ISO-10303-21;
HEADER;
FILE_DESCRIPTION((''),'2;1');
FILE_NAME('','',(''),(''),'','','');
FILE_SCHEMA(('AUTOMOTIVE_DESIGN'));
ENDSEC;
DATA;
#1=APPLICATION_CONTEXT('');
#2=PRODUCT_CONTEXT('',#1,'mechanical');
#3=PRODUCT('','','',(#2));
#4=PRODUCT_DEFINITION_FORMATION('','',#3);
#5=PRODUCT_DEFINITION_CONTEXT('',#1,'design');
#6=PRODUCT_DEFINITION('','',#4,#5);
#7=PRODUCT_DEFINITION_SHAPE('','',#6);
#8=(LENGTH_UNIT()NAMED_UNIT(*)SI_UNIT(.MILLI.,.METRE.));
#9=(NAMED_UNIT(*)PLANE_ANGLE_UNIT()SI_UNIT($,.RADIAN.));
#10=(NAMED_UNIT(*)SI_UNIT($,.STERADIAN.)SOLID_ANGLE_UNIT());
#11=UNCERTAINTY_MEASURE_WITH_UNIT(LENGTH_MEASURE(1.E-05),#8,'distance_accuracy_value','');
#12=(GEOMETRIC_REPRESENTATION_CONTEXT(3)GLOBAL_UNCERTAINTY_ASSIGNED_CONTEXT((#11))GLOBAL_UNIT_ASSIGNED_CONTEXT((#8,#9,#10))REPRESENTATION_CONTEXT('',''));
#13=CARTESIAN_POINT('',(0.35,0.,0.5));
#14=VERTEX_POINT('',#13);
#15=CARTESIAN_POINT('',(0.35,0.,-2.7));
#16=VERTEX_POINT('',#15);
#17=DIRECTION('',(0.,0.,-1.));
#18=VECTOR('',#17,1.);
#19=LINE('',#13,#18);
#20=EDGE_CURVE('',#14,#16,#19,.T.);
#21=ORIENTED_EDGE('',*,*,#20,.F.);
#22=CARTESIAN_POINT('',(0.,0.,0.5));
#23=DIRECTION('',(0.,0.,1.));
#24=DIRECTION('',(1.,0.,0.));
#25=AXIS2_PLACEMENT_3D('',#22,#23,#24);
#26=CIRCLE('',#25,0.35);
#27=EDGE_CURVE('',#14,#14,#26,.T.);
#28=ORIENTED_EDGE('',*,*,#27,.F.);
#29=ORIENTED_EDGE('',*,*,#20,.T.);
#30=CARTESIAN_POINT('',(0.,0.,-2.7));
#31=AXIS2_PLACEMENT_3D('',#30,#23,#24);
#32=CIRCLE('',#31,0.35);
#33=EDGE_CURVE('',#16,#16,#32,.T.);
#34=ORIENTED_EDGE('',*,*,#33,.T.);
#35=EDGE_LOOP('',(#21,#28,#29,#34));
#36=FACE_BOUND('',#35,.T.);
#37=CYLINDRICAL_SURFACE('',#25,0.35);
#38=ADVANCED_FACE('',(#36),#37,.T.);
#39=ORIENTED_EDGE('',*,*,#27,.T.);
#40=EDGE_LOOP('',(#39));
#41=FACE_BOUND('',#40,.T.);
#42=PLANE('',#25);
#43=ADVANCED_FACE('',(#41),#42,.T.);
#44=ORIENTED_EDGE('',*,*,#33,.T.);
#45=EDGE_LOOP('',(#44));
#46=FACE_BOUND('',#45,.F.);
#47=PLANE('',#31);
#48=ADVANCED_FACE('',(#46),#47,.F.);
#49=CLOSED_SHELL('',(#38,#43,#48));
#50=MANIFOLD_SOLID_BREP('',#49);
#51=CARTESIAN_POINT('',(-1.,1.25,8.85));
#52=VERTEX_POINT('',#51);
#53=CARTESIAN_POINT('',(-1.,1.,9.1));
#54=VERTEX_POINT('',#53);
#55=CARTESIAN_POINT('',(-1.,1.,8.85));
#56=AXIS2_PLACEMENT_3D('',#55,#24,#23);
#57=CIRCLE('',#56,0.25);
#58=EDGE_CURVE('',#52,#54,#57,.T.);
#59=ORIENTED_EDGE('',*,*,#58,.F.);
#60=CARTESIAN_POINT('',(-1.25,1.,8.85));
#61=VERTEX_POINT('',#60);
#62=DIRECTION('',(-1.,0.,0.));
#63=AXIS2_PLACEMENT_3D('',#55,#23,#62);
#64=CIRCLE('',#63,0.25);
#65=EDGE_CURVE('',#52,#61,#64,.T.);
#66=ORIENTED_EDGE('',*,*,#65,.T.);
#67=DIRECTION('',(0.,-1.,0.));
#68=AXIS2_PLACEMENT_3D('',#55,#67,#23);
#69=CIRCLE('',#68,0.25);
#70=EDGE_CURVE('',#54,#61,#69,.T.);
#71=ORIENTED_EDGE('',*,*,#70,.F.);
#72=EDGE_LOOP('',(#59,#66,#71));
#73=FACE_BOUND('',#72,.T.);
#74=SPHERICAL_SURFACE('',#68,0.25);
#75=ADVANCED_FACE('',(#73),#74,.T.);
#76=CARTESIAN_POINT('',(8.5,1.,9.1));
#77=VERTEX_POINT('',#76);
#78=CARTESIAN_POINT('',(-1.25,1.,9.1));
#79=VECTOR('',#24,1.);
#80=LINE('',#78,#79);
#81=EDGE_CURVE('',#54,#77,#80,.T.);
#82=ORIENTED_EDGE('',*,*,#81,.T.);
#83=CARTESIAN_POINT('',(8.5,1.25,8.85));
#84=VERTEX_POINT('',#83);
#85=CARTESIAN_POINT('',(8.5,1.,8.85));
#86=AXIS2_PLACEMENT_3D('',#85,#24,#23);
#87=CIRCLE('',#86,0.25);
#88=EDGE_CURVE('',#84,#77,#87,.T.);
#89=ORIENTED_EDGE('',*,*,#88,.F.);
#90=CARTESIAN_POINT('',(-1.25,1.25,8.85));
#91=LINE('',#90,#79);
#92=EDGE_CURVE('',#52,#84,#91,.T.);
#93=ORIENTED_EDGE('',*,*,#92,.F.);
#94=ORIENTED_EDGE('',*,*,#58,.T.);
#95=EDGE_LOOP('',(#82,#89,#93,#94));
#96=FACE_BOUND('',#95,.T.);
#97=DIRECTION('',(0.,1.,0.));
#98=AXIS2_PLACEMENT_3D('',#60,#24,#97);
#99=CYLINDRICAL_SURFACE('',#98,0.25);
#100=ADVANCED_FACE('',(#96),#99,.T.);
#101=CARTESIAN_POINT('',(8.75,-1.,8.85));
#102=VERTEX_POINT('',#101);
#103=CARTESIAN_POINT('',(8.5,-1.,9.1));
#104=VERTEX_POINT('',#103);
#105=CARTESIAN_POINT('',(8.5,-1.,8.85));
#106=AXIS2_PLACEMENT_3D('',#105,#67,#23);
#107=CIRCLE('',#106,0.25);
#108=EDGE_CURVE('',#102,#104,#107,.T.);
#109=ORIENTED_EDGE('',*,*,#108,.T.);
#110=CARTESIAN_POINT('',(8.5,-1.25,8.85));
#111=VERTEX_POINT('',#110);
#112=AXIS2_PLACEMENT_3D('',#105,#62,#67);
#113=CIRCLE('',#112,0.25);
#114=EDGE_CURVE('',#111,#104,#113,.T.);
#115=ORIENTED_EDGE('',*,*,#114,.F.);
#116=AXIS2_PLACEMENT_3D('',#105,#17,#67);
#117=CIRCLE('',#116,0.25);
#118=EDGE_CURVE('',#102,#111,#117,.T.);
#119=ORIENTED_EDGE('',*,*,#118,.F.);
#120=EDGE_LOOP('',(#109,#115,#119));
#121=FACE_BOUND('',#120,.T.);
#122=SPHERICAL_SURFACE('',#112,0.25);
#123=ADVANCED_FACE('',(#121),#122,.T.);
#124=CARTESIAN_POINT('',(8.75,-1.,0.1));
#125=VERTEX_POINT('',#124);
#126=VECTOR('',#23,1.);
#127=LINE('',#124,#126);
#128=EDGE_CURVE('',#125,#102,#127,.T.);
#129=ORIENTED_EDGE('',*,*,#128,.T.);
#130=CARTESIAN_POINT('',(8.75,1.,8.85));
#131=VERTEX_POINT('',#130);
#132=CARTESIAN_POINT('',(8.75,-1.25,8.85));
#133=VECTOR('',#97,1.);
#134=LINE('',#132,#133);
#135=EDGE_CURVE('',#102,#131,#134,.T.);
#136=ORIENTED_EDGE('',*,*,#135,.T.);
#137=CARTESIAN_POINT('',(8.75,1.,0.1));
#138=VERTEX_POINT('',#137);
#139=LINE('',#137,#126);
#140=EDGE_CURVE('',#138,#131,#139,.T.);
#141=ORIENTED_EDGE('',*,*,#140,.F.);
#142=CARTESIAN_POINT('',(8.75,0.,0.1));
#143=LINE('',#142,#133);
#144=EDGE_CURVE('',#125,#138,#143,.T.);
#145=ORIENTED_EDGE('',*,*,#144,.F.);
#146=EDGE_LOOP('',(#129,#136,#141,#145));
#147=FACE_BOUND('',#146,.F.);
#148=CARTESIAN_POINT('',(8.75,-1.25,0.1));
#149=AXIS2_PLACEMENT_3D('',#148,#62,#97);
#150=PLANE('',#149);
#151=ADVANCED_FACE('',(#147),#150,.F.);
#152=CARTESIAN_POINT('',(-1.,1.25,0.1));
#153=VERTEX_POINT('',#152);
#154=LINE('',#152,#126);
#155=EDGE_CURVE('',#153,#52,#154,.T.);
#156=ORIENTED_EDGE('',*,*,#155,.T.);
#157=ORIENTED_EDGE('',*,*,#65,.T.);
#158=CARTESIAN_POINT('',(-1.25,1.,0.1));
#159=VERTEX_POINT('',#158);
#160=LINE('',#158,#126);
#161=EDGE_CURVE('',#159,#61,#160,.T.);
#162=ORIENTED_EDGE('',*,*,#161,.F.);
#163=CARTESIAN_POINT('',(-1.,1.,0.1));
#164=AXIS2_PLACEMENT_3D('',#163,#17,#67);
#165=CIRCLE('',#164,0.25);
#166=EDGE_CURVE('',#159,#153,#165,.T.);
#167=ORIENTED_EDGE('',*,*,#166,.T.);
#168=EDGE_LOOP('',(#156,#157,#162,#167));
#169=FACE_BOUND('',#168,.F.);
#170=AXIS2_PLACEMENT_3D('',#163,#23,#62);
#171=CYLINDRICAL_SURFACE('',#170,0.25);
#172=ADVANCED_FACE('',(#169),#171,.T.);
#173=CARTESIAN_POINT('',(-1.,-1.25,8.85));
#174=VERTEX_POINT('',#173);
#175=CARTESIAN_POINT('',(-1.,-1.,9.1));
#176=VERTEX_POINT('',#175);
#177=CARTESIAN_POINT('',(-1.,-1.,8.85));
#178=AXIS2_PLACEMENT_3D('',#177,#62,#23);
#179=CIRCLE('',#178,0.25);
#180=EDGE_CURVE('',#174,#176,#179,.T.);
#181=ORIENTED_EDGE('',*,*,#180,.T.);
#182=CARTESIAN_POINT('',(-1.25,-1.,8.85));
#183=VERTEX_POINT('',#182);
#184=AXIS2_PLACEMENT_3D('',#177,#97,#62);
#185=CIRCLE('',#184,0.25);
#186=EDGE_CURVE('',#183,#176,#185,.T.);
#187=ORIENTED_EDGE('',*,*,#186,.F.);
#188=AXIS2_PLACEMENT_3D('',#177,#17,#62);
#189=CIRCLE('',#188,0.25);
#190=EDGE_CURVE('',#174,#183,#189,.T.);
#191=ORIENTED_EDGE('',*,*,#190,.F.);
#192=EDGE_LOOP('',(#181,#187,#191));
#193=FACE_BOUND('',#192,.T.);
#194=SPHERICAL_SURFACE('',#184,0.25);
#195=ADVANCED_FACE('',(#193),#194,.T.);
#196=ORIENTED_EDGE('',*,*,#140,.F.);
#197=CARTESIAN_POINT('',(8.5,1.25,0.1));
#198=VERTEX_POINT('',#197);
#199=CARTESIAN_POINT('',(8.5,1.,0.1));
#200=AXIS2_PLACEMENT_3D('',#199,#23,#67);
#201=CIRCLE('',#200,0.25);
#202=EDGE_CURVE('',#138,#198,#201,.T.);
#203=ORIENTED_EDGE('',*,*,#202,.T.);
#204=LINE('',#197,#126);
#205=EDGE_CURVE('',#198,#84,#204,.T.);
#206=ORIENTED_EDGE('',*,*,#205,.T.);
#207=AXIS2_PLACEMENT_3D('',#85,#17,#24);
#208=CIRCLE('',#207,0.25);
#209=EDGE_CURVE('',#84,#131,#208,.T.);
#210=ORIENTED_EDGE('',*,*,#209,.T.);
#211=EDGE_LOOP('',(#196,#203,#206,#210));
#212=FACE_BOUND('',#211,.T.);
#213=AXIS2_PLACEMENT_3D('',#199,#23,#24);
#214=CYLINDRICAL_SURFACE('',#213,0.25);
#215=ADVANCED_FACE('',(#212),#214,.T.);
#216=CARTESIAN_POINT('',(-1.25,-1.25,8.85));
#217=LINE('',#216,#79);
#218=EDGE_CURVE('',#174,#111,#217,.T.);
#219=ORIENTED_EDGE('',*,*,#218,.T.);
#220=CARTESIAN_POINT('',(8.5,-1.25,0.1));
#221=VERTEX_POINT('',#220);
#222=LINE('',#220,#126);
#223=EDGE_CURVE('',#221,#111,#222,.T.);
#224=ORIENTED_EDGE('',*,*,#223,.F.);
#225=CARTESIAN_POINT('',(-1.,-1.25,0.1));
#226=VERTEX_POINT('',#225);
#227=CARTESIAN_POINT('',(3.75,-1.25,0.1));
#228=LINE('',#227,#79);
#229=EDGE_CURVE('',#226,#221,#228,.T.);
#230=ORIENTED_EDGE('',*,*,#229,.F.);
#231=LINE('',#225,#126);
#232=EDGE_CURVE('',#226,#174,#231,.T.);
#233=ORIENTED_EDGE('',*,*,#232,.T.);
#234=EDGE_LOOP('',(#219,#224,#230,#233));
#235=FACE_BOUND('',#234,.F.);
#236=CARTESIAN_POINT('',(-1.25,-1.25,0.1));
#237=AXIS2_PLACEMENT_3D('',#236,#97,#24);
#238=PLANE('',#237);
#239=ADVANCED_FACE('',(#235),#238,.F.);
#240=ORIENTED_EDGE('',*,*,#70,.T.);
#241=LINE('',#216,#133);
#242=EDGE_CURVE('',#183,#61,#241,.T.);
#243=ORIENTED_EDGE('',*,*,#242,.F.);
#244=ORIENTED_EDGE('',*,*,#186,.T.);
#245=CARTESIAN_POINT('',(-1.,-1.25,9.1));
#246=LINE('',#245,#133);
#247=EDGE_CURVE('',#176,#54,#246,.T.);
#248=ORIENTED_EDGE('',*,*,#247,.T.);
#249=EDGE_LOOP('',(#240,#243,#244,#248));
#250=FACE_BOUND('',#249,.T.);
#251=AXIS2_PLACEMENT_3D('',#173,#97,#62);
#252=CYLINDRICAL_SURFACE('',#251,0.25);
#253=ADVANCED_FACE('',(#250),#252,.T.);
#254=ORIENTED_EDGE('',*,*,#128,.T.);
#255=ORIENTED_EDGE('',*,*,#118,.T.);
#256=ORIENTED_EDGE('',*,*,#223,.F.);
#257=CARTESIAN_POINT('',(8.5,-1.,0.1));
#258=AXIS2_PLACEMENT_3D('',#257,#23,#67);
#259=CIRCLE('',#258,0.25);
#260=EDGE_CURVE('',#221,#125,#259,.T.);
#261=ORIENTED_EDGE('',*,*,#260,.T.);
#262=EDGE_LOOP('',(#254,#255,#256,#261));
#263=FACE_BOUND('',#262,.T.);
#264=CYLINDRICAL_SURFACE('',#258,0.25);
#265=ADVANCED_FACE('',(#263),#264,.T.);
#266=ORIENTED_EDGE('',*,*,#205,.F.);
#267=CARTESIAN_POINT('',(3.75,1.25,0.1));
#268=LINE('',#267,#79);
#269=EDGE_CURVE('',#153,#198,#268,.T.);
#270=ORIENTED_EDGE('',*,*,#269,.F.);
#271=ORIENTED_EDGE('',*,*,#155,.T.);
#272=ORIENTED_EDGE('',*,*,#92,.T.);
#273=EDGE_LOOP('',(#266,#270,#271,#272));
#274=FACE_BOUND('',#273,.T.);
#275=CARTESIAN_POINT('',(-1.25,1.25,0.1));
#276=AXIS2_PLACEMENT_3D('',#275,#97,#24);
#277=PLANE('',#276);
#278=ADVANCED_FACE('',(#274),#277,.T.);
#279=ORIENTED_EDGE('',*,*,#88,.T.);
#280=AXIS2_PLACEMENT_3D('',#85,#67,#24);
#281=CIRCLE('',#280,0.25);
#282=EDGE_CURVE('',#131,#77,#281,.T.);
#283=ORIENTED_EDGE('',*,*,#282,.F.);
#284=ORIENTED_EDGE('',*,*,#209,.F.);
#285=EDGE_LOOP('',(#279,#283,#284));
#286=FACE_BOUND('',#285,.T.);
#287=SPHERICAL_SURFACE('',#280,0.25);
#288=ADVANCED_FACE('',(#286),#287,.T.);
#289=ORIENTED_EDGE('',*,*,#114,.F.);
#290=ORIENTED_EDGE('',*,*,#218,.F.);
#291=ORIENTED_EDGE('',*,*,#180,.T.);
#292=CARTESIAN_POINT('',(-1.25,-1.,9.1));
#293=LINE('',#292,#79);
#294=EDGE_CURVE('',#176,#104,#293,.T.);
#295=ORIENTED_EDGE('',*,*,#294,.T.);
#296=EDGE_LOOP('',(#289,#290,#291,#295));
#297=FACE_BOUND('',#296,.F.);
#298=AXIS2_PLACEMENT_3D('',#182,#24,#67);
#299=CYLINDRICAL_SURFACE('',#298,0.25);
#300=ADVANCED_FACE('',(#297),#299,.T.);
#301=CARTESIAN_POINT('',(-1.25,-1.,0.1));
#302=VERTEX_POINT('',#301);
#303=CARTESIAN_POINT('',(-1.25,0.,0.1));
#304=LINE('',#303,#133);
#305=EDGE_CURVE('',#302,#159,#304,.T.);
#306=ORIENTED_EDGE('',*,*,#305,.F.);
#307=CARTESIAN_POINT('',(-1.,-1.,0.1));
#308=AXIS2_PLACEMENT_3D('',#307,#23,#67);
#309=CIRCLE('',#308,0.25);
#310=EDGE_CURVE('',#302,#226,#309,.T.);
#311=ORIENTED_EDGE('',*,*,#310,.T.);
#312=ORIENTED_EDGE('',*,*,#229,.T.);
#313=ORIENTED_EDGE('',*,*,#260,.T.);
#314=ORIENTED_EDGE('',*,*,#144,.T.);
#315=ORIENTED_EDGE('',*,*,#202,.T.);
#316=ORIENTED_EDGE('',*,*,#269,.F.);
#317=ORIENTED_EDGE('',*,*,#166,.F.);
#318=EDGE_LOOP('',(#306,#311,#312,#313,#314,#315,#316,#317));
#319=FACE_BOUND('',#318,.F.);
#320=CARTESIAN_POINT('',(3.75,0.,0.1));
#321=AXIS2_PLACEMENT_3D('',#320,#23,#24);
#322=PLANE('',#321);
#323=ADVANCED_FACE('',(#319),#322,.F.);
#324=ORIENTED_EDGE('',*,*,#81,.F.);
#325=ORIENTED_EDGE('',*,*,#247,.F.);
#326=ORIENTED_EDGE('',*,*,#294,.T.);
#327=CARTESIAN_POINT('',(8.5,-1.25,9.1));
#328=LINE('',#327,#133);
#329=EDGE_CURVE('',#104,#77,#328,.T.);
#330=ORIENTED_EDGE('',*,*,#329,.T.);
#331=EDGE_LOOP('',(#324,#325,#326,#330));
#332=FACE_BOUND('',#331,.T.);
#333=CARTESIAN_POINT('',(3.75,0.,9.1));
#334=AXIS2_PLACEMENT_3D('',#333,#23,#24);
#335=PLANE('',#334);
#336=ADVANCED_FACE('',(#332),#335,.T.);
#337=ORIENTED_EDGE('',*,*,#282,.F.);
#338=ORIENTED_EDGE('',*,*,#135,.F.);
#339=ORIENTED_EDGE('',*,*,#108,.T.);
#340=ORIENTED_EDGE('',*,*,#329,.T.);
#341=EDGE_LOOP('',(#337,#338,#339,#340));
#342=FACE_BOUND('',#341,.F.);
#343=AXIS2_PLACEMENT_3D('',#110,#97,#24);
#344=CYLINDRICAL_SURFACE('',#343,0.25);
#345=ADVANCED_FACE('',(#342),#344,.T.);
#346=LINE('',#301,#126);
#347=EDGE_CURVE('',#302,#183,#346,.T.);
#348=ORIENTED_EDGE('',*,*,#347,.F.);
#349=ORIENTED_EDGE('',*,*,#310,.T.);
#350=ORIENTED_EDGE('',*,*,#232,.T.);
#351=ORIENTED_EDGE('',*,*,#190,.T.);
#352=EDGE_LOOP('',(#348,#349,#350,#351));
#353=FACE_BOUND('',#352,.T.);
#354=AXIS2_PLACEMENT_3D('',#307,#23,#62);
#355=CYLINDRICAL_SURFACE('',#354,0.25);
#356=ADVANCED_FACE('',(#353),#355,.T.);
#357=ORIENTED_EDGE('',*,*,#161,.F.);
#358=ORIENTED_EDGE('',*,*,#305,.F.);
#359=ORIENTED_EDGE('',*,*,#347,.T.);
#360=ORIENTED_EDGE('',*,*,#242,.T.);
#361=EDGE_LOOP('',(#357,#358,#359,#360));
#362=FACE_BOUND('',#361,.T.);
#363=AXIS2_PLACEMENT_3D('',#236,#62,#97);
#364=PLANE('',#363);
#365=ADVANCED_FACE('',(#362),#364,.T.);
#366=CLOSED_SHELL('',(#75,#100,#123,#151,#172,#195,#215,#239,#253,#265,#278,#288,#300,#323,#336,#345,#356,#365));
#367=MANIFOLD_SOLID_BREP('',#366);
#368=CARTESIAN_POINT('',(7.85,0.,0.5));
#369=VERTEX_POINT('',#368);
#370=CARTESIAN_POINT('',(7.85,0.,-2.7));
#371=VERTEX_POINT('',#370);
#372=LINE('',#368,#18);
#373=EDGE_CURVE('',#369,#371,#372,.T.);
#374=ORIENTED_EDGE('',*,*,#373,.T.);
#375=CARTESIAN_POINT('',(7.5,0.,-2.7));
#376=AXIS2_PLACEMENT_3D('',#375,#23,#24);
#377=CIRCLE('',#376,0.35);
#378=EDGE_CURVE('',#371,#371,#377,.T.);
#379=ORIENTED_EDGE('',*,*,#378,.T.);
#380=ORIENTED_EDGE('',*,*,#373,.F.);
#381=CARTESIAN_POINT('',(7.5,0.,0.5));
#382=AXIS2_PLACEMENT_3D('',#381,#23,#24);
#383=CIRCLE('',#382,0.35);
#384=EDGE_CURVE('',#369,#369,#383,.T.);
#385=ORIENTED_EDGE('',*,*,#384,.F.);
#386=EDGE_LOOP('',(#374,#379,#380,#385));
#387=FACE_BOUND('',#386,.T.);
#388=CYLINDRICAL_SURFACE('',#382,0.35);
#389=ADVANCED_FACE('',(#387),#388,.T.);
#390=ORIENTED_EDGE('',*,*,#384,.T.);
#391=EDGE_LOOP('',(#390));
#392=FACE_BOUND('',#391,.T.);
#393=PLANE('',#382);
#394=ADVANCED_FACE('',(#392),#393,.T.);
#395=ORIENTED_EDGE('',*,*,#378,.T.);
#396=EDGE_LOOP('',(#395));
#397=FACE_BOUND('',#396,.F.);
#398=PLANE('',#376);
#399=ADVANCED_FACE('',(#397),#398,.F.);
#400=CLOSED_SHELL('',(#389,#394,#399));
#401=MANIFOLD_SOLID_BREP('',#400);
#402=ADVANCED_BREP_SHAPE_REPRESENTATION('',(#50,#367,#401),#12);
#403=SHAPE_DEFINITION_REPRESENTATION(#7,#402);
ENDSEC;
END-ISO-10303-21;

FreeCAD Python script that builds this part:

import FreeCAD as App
import Part
import Sketcher

V = App.Vector
Q = App.Units.Quantity


def edges_at(feature, points):
    """Names of the edges that pass closest to the given points."""
    edges = feature.Shape.Edges
    near = lambda p: min(range(len(edges)), key=lambda i: edges[i].distToShape(Part.Vertex(*p))[0])
    return sorted({f"Edge{near(p) + 1}" for p in points})

doc = App.newDocument("Part")
body = doc.addObject("PartDesign::Body", "Body")

# Sketch on XY plane
sketch1 = body.newObject("Sketcher::SketchObject", "Sketch")
sketch1.AttachmentSupport = (doc.getObject("XY_Plane"), [""])
sketch1.MapMode = "FlatFace"
sketch1.AttachmentOffset = App.Placement(V(0, 0, 0.1), App.Rotation())
sketch1.addGeometry([
    Part.LineSegment(V(-1.2, 1.2, 0), V(-1.2, -1.2, 0)),
    Part.LineSegment(V(-1.2, -1.2, 0), V(8.8, -1.2, 0)),
    Part.LineSegment(V(8.8, -1.2, 0), V(8.8, 1.2, 0)),
    Part.LineSegment(V(8.8, 1.2, 0), V(-1.2, 1.2, 0)),
], False)
sketch1.addConstraint([
    Sketcher.Constraint("Coincident", 0, 2, 1, 1),
    Sketcher.Constraint("Coincident", 1, 2, 2, 1),
    Sketcher.Constraint("Coincident", 2, 2, 3, 1),
    Sketcher.Constraint("Coincident", 3, 2, 0, 1),
    Sketcher.Constraint("Vertical", 0),
    Sketcher.Constraint("Horizontal", 1),
    Sketcher.Constraint("Vertical", 2),
    Sketcher.Constraint("Horizontal", 3),
    Sketcher.Constraint("DistanceX", 1, 1, 1, 2, Q("10 mm")),
    Sketcher.Constraint("DistanceY", 0, 2, 0, 1, Q("2.5 mm")),
    Sketcher.Constraint("DistanceX", 0, 2, -1, 1, Q("1.25 mm")),
    Sketcher.Constraint("DistanceY", 0, 2, -1, 1, Q("1.25 mm")),
])
pad1 = body.newObject("PartDesign::Pad", "Pad")
pad1.Profile = sketch1
pad1.Length = 9
doc.recompute()

fillet = body.newObject("PartDesign::Fillet", "Fillet")
fillet.Base = (pad1, edges_at(pad1, [
    (-1.25, 0, 9.1),
    (-1.25, -1.25, 4.6),
    (3.75, -1.25, 9.1),
    (8.75, -1.25, 4.6),
    (8.75, 0, 9.1),
    (8.75, 1.25, 4.6),
    (3.75, 1.25, 9.1),
    (-1.25, 1.25, 4.6),
]))
fillet.Radius = 0.25
body2 = doc.addObject("PartDesign::Body", "Body001")
body2.AllowCompound = True

# Sketch on XY plane
sketch2 = body2.newObject("Sketcher::SketchObject", "Sketch001")
sketch2.AttachmentSupport = (doc.getObject("XY_Plane001"), [""])
sketch2.MapMode = "FlatFace"
sketch2.AttachmentOffset = App.Placement(V(0, 0, 0.5), App.Rotation())
sketch2.addGeometry([
    Part.Circle(V(0, 0, 0), V(0, 0, 1), 0.35),
    Part.Circle(V(7.5, 0, 0), V(0, 0, 1), 0.35),
], False)
sketch2.addConstraint([
    Sketcher.Constraint("Coincident", 0, 3, -1, 1),
    Sketcher.Constraint("Equal", 0, 1),
    Sketcher.Constraint("PointOnObject", 1, 3, -1),
    Sketcher.Constraint("Diameter", 0, Q("0.7 mm")),
    Sketcher.Constraint("DistanceX", -1, 1, 1, 3, Q("7.5 mm")),
])
pad2 = body2.newObject("PartDesign::Pad", "Pad001")
pad2.Profile = sketch2
pad2.Length = 3.2
pad2.Reversed = True

doc.recompute()
